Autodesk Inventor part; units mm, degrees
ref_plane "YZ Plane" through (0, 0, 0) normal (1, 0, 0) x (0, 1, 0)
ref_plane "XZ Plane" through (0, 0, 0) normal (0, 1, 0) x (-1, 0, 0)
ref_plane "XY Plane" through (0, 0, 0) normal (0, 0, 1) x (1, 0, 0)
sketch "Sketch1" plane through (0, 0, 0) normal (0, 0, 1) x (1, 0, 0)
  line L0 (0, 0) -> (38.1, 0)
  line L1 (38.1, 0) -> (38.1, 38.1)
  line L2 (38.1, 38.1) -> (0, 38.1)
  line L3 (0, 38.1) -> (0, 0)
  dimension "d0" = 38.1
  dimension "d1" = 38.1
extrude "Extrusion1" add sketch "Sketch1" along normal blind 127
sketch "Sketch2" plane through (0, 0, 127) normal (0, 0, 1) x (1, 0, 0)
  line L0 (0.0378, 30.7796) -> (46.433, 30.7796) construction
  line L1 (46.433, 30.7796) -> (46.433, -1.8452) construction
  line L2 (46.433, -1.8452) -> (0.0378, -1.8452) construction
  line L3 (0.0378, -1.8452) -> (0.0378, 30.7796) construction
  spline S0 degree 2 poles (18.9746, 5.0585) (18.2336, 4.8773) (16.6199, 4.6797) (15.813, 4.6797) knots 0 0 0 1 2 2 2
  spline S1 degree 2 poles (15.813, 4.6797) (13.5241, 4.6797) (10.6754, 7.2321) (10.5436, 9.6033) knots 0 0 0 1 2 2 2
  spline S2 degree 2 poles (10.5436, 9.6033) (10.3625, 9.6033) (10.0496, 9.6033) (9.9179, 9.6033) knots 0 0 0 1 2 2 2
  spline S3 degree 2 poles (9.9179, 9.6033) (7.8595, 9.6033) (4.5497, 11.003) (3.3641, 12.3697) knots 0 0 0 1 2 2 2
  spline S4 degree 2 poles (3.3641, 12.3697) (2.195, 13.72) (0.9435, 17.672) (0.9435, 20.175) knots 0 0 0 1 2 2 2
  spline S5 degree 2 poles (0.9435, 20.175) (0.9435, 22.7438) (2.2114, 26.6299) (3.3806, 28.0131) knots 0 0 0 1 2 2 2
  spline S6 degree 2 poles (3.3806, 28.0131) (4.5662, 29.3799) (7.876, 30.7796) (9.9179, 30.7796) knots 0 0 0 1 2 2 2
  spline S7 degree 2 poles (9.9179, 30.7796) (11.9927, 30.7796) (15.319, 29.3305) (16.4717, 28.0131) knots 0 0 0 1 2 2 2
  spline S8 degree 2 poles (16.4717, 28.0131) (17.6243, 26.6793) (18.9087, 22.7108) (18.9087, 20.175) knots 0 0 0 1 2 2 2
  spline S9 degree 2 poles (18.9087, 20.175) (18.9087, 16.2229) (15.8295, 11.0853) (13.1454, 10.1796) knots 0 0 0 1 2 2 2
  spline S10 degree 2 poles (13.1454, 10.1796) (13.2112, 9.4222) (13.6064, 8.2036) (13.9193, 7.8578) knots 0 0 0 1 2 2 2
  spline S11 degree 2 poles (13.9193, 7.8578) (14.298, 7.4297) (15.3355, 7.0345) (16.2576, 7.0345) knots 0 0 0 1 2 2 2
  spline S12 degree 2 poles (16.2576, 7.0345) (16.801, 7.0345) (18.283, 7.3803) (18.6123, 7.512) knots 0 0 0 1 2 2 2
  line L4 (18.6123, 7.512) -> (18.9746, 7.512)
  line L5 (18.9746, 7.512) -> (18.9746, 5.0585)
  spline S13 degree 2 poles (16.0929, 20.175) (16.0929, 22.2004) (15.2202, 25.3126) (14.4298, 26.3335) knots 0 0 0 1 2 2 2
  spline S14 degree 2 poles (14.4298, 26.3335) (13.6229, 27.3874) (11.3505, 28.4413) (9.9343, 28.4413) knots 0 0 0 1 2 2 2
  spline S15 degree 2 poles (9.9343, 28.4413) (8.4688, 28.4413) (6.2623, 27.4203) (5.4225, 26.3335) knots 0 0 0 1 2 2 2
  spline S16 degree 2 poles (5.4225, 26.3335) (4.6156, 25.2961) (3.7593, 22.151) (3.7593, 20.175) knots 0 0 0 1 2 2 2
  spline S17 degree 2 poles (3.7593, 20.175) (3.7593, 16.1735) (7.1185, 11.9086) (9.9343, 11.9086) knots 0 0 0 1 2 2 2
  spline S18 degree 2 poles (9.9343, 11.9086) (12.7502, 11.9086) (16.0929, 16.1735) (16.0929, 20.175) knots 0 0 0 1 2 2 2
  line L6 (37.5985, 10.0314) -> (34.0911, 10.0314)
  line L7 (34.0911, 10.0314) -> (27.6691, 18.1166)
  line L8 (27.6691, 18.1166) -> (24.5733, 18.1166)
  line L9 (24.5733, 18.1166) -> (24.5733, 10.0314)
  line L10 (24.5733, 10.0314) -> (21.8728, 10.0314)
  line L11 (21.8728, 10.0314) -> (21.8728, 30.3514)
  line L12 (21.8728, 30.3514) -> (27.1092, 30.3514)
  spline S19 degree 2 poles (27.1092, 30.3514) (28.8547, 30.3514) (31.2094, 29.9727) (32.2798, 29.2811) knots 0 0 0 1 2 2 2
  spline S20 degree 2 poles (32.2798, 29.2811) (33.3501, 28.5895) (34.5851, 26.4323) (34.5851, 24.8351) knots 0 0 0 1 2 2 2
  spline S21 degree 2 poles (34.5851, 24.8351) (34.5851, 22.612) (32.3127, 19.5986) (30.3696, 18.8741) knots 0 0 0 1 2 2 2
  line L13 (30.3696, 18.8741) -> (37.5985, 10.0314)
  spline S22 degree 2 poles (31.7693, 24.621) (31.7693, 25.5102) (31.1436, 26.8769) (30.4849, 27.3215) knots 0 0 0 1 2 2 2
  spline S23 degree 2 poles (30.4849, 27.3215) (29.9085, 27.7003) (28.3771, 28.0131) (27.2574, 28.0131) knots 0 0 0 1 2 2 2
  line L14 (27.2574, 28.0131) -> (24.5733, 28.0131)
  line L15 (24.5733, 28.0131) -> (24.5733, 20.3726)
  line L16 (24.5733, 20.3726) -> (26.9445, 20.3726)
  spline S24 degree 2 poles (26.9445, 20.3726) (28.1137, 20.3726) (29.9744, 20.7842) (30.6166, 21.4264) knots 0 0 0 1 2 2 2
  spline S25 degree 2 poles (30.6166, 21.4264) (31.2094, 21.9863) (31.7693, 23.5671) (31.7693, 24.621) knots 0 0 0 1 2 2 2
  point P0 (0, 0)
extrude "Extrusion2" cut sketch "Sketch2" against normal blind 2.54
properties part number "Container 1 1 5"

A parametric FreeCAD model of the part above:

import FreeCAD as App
import Part
import Sketcher

V = App.Vector
Q = App.Units.Quantity


def add_polygon(sketch, points):
    """Adds a closed chain of lines whose ends are joined by coincident constraints."""
    first, n = sketch.GeometryCount, len(points)
    for a, b in zip(points, points[1:] + points[:1]):
        sketch.addGeometry(Part.LineSegment(App.Vector(*a, 0), App.Vector(*b, 0)), False)
    for i in range(n):
        sketch.addConstraint(Sketcher.Constraint("Coincident", first + i, 2, first + (i + 1) % n, 1))

doc = App.newDocument("Part")
body = doc.addObject("PartDesign::Body", "Body")

sketch1 = body.newObject("Sketcher::SketchObject", "Sketch")
sketch1.AttachmentSupport = (doc.getObject("XY_Plane"), [""])
sketch1.MapMode = "FlatFace"
add_polygon(sketch1, [(0, 38), (0, 0), (38, 0), (38, 38)])
sketch1.addConstraint([
    Sketcher.Constraint("Vertical", 0),
    Sketcher.Constraint("Horizontal", 1),
    Sketcher.Constraint("Vertical", 2),
    Sketcher.Constraint("Horizontal", 3),
    Sketcher.Constraint("Coincident", 0, 2, -1, 1),
    Sketcher.Constraint("Equal", 3, 0),
    Sketcher.Constraint("DistanceX", 1, 1, 1, 2, Q("1.5 in")),
])
pad1 = body.newObject("PartDesign::Pad", "Pad")
pad1.Profile = sketch1
pad1.Length = Q("5 in")

sketch2 = body.newObject("Sketcher::SketchObject", "Sketch001")
sketch2.AttachmentSupport = (doc.getObject("XY_Plane"), [""])
sketch2.MapMode = "FlatFace"
sketch2.AttachmentOffset = App.Placement(V(0, 0, 5 * 25.4), App.Rotation())
sketch2.addGeometry([
    Part.BSplineCurve([V(18.9746, 5.0585, 0), V(18.2336, 4.8773, 0), V(16.6199, 4.6797, 0), V(15.813, 4.6797, 0)], [3, 1, 3], [0, 1, 2], False, 2, [1, 1, 1, 1], False),
    Part.LineSegment(V(18.9746, 5.0585, 0), V(18.9746, 7.512, 0)),
    Part.LineSegment(V(18.9746, 7.512, 0), V(18.6123, 7.512, 0)),
    Part.BSplineCurve([V(16.2576, 7.0345, 0), V(16.801, 7.0345, 0), V(18.283, 7.3803, 0), V(18.6123, 7.512, 0)], [3, 1, 3], [0, 1, 2], False, 2, [1, 1, 1, 1], False),
    Part.BSplineCurve([V(13.9193, 7.8578, 0), V(14.298, 7.4297, 0), V(15.3355, 7.0345, 0), V(16.2576, 7.0345, 0)], [3, 1, 3], [0, 1, 2], False, 2, [1, 1, 1, 1], False),
    Part.BSplineCurve([V(13.1454, 10.1796, 0), V(13.2112, 9.4222, 0), V(13.6064, 8.2036, 0), V(13.9193, 7.8578, 0)], [3, 1, 3], [0, 1, 2], False, 2, [1, 1, 1, 1], False),
    Part.BSplineCurve([V(18.9087, 20.175, 0), V(18.9087, 16.2229, 0), V(15.8295, 11.0853, 0), V(13.1454, 10.1796, 0)], [3, 1, 3], [0, 1, 2], False, 2, [1, 1, 1, 1], False),
    Part.BSplineCurve([V(16.4717, 28.0131, 0), V(17.6243, 26.6793, 0), V(18.9087, 22.7108, 0), V(18.9087, 20.175, 0)], [3, 1, 3], [0, 1, 2], False, 2, [1, 1, 1, 1], False),
    Part.BSplineCurve([V(9.9179, 30.7796, 0), V(11.9927, 30.7796, 0), V(15.319, 29.3305, 0), V(16.4717, 28.0131, 0)], [3, 1, 3], [0, 1, 2], False, 2, [1, 1, 1, 1], False),
    Part.BSplineCurve([V(3.3806, 28.0131, 0), V(4.5662, 29.3799, 0), V(7.876, 30.7796, 0), V(9.9179, 30.7796, 0)], [3, 1, 3], [0, 1, 2], False, 2, [1, 1, 1, 1], False),
    Part.BSplineCurve([V(0.9435, 20.175, 0), V(0.9435, 22.7438, 0), V(2.2114, 26.6299, 0), V(3.3806, 28.0131, 0)], [3, 1, 3], [0, 1, 2], False, 2, [1, 1, 1, 1], False),
    Part.BSplineCurve([V(3.3641, 12.3697, 0), V(2.195, 13.72, 0), V(0.9435, 17.672, 0), V(0.9435, 20.175, 0)], [3, 1, 3], [0, 1, 2], False, 2, [1, 1, 1, 1], False),
    Part.BSplineCurve([V(9.9179, 9.6033, 0), V(7.8595, 9.6033, 0), V(4.5497, 11.003, 0), V(3.3641, 12.3697, 0)], [3, 1, 3], [0, 1, 2], False, 2, [1, 1, 1, 1], False),
    Part.BSplineCurve([V(10.5436, 9.6033, 0), V(10.3625, 9.6033, 0), V(10.0496, 9.6033, 0), V(9.9179, 9.6033, 0)], [3, 1, 3], [0, 1, 2], False, 2, [1, 1, 1, 1], False),
    Part.BSplineCurve([V(15.813, 4.6797, 0), V(13.5241, 4.6797, 0), V(10.6754, 7.2321, 0), V(10.5436, 9.6033, 0)], [3, 1, 3], [0, 1, 2], False, 2, [1, 1, 1, 1], False),
    Part.BSplineCurve([V(16.0929, 20.175, 0), V(16.0929, 22.2004, 0), V(15.2202, 25.3126, 0), V(14.4298, 26.3335, 0)], [3, 1, 3], [0, 1, 2], False, 2, [1, 1, 1, 1], False),
    Part.BSplineCurve([V(9.9343, 11.9086, 0), V(12.7502, 11.9086, 0), V(16.0929, 16.1735, 0), V(16.0929, 20.175, 0)], [3, 1, 3], [0, 1, 2], False, 2, [1, 1, 1, 1], False),
    Part.BSplineCurve([V(3.7593, 20.175, 0), V(3.7593, 16.1735, 0), V(7.1185, 11.9086, 0), V(9.9343, 11.9086, 0)], [3, 1, 3], [0, 1, 2], False, 2, [1, 1, 1, 1], False),
    Part.BSplineCurve([V(5.4225, 26.3335, 0), V(4.6156, 25.2961, 0), V(3.7593, 22.151, 0), V(3.7593, 20.175, 0)], [3, 1, 3], [0, 1, 2], False, 2, [1, 1, 1, 1], False),
    Part.BSplineCurve([V(9.9343, 28.4413, 0), V(8.4688, 28.4413, 0), V(6.2623, 27.4203, 0), V(5.4225, 26.3335, 0)], [3, 1, 3], [0, 1, 2], False, 2, [1, 1, 1, 1], False),
    Part.BSplineCurve([V(14.4298, 26.3335, 0), V(13.6229, 27.3874, 0), V(11.3505, 28.4413, 0), V(9.9343, 28.4413, 0)], [3, 1, 3], [0, 1, 2], False, 2, [1, 1, 1, 1], False),
    Part.LineSegment(V(34.0911, 10.0314, 0), V(37.5985, 10.0314, 0)),
    Part.LineSegment(V(37.5985, 10.0314, 0), V(30.3696, 18.8741, 0)),
    Part.BSplineCurve([V(34.5851, 24.8351, 0), V(34.5851, 22.612, 0), V(32.3127, 19.5986, 0), V(30.3696, 18.8741, 0)], [3, 1, 3], [0, 1, 2], False, 2, [1, 1, 1, 1], False),
    Part.BSplineCurve([V(32.2798, 29.2811, 0), V(33.3501, 28.5895, 0), V(34.5851, 26.4323, 0), V(34.5851, 24.8351, 0)], [3, 1, 3], [0, 1, 2], False, 2, [1, 1, 1, 1], False),
    Part.BSplineCurve([V(27.1092, 30.3514, 0), V(28.8547, 30.3514, 0), V(31.2094, 29.9727, 0), V(32.2798, 29.2811, 0)], [3, 1, 3], [0, 1, 2], False, 2, [1, 1, 1, 1], False),
    Part.LineSegment(V(27.1092, 30.3514, 0), V(21.8728, 30.3514, 0)),
    Part.LineSegment(V(21.8728, 30.3514, 0), V(21.8728, 10.0314, 0)),
    Part.LineSegment(V(21.8728, 10.0314, 0), V(24.5733, 10.0314, 0)),
    Part.LineSegment(V(24.5733, 10.0314, 0), V(24.5733, 18.1166, 0)),
    Part.LineSegment(V(24.5733, 18.1166, 0), V(27.6691, 18.1166, 0)),
    Part.LineSegment(V(27.6691, 18.1166, 0), V(34.0911, 10.0314, 0)),
    Part.BSplineCurve([V(31.7693, 24.621, 0), V(31.7693, 25.5102, 0), V(31.1436, 26.8769, 0), V(30.4849, 27.3215, 0)], [3, 1, 3], [0, 1, 2], False, 2, [1, 1, 1, 1], False),
    Part.BSplineCurve([V(30.6166, 21.4264, 0), V(31.2094, 21.9863, 0), V(31.7693, 23.5671, 0), V(31.7693, 24.621, 0)], [3, 1, 3], [0, 1, 2], False, 2, [1, 1, 1, 1], False),
    Part.BSplineCurve([V(26.9445, 20.3726, 0), V(28.1137, 20.3726, 0), V(29.9744, 20.7842, 0), V(30.6166, 21.4264, 0)], [3, 1, 3], [0, 1, 2], False, 2, [1, 1, 1, 1], False),
    Part.LineSegment(V(26.9445, 20.3726, 0), V(24.5733, 20.3726, 0)),
    Part.LineSegment(V(24.5733, 20.3726, 0), V(24.5733, 28.0131, 0)),
    Part.LineSegment(V(24.5733, 28.0131, 0), V(27.2574, 28.0131, 0)),
    Part.BSplineCurve([V(30.4849, 27.3215, 0), V(29.9085, 27.7003, 0), V(28.3771, 28.0131, 0), V(27.2574, 28.0131, 0)], [3, 1, 3], [0, 1, 2], False, 2, [1, 1, 1, 1], False),
], False)
sketch2.addConstraint([
    Sketcher.Constraint("Block", 0),
    Sketcher.Constraint("Block", 3),
    Sketcher.Constraint("Block", 4),
    Sketcher.Constraint("Block", 5),
    Sketcher.Constraint("Block", 6),
    Sketcher.Constraint("Block", 7),
    Sketcher.Constraint("Block", 8),
    Sketcher.Constraint("Block", 9),
    Sketcher.Constraint("Block", 10),
    Sketcher.Constraint("Block", 11),
    Sketcher.Constraint("Block", 12),
    Sketcher.Constraint("Block", 13),
    Sketcher.Constraint("Block", 14),
    Sketcher.Constraint("Block", 15),
    Sketcher.Constraint("Block", 16),
    Sketcher.Constraint("Block", 17),
    Sketcher.Constraint("Block", 18),
    Sketcher.Constraint("Block", 19),
    Sketcher.Constraint("Block", 20),
    Sketcher.Constraint("Block", 23),
    Sketcher.Constraint("Block", 24),
    Sketcher.Constraint("Block", 25),
    Sketcher.Constraint("Block", 32),
    Sketcher.Constraint("Block", 33),
    Sketcher.Constraint("Block", 34),
    Sketcher.Constraint("Block", 38),
    Sketcher.Constraint("Coincident", 0, 1, 1, 1),
    Sketcher.Constraint("Coincident", 1, 2, 2, 1),
    Sketcher.Constraint("Coincident", 2, 2, 3, 2),
    Sketcher.Constraint("Coincident", 21, 2, 22, 1),
    Sketcher.Constraint("Coincident", 22, 2, 23, 2),
    Sketcher.Constraint("Coincident", 25, 1, 26, 1),
    Sketcher.Constraint("Coincident", 26, 2, 27, 1),
    Sketcher.Constraint("Coincident", 27, 2, 28, 1),
    Sketcher.Constraint("Coincident", 28, 2, 29, 1),
    Sketcher.Constraint("Coincident", 29, 2, 30, 1),
    Sketcher.Constraint("Coincident", 30, 2, 31, 1),
    Sketcher.Constraint("Coincident", 31, 2, 21, 1),
    Sketcher.Constraint("Coincident", 34, 1, 35, 1),
    Sketcher.Constraint("Coincident", 35, 2, 36, 1),
    Sketcher.Constraint("Coincident", 36, 2, 37, 1),
    Sketcher.Constraint("Coincident", 37, 2, 38, 2),
    Sketcher.Constraint("Vertical", 1),
    Sketcher.Constraint("Horizontal", 2),
    Sketcher.Constraint("Horizontal", 21),
    Sketcher.Constraint("Horizontal", 26),
    Sketcher.Constraint("Vertical", 27),
    Sketcher.Constraint("Horizontal", 28),
    Sketcher.Constraint("Vertical", 29),
    Sketcher.Constraint("Horizontal", 30),
    Sketcher.Constraint("Horizontal", 35),
    Sketcher.Constraint("Vertical", 36),
    Sketcher.Constraint("Horizontal", 37),
    Sketcher.Constraint("Horizontal", 21, 2, 27, 2),
    Sketcher.Constraint("Vertical", 29, 2, 35, 2),
    Sketcher.Constraint("DistanceY", 27, 2, 27, 1, Q("0.8 in")),
    Sketcher.Constraint("Angle", 31, Q("-51.5402 deg")),
    Sketcher.Constraint("DistanceX", 26, 2, 37, 2, Q("0.212 in")),
    Sketcher.Constraint("Distance", 31, Q("0.4065 in")),
    Sketcher.Constraint("DistanceX", 21, 1, 21, 2, 3.5074),
    Sketcher.Constraint("DistanceX", 28, 1, 28, 2, 2.7005),
    Sketcher.Constraint("DistanceX", 30, 1, 30, 2, 3.0958),
])
pocket1 = body.newObject("PartDesign::Pocket", "Pocket")
pocket1.Profile = sketch2
pocket1.Length = Q("0.1 in")

doc.recompute()
